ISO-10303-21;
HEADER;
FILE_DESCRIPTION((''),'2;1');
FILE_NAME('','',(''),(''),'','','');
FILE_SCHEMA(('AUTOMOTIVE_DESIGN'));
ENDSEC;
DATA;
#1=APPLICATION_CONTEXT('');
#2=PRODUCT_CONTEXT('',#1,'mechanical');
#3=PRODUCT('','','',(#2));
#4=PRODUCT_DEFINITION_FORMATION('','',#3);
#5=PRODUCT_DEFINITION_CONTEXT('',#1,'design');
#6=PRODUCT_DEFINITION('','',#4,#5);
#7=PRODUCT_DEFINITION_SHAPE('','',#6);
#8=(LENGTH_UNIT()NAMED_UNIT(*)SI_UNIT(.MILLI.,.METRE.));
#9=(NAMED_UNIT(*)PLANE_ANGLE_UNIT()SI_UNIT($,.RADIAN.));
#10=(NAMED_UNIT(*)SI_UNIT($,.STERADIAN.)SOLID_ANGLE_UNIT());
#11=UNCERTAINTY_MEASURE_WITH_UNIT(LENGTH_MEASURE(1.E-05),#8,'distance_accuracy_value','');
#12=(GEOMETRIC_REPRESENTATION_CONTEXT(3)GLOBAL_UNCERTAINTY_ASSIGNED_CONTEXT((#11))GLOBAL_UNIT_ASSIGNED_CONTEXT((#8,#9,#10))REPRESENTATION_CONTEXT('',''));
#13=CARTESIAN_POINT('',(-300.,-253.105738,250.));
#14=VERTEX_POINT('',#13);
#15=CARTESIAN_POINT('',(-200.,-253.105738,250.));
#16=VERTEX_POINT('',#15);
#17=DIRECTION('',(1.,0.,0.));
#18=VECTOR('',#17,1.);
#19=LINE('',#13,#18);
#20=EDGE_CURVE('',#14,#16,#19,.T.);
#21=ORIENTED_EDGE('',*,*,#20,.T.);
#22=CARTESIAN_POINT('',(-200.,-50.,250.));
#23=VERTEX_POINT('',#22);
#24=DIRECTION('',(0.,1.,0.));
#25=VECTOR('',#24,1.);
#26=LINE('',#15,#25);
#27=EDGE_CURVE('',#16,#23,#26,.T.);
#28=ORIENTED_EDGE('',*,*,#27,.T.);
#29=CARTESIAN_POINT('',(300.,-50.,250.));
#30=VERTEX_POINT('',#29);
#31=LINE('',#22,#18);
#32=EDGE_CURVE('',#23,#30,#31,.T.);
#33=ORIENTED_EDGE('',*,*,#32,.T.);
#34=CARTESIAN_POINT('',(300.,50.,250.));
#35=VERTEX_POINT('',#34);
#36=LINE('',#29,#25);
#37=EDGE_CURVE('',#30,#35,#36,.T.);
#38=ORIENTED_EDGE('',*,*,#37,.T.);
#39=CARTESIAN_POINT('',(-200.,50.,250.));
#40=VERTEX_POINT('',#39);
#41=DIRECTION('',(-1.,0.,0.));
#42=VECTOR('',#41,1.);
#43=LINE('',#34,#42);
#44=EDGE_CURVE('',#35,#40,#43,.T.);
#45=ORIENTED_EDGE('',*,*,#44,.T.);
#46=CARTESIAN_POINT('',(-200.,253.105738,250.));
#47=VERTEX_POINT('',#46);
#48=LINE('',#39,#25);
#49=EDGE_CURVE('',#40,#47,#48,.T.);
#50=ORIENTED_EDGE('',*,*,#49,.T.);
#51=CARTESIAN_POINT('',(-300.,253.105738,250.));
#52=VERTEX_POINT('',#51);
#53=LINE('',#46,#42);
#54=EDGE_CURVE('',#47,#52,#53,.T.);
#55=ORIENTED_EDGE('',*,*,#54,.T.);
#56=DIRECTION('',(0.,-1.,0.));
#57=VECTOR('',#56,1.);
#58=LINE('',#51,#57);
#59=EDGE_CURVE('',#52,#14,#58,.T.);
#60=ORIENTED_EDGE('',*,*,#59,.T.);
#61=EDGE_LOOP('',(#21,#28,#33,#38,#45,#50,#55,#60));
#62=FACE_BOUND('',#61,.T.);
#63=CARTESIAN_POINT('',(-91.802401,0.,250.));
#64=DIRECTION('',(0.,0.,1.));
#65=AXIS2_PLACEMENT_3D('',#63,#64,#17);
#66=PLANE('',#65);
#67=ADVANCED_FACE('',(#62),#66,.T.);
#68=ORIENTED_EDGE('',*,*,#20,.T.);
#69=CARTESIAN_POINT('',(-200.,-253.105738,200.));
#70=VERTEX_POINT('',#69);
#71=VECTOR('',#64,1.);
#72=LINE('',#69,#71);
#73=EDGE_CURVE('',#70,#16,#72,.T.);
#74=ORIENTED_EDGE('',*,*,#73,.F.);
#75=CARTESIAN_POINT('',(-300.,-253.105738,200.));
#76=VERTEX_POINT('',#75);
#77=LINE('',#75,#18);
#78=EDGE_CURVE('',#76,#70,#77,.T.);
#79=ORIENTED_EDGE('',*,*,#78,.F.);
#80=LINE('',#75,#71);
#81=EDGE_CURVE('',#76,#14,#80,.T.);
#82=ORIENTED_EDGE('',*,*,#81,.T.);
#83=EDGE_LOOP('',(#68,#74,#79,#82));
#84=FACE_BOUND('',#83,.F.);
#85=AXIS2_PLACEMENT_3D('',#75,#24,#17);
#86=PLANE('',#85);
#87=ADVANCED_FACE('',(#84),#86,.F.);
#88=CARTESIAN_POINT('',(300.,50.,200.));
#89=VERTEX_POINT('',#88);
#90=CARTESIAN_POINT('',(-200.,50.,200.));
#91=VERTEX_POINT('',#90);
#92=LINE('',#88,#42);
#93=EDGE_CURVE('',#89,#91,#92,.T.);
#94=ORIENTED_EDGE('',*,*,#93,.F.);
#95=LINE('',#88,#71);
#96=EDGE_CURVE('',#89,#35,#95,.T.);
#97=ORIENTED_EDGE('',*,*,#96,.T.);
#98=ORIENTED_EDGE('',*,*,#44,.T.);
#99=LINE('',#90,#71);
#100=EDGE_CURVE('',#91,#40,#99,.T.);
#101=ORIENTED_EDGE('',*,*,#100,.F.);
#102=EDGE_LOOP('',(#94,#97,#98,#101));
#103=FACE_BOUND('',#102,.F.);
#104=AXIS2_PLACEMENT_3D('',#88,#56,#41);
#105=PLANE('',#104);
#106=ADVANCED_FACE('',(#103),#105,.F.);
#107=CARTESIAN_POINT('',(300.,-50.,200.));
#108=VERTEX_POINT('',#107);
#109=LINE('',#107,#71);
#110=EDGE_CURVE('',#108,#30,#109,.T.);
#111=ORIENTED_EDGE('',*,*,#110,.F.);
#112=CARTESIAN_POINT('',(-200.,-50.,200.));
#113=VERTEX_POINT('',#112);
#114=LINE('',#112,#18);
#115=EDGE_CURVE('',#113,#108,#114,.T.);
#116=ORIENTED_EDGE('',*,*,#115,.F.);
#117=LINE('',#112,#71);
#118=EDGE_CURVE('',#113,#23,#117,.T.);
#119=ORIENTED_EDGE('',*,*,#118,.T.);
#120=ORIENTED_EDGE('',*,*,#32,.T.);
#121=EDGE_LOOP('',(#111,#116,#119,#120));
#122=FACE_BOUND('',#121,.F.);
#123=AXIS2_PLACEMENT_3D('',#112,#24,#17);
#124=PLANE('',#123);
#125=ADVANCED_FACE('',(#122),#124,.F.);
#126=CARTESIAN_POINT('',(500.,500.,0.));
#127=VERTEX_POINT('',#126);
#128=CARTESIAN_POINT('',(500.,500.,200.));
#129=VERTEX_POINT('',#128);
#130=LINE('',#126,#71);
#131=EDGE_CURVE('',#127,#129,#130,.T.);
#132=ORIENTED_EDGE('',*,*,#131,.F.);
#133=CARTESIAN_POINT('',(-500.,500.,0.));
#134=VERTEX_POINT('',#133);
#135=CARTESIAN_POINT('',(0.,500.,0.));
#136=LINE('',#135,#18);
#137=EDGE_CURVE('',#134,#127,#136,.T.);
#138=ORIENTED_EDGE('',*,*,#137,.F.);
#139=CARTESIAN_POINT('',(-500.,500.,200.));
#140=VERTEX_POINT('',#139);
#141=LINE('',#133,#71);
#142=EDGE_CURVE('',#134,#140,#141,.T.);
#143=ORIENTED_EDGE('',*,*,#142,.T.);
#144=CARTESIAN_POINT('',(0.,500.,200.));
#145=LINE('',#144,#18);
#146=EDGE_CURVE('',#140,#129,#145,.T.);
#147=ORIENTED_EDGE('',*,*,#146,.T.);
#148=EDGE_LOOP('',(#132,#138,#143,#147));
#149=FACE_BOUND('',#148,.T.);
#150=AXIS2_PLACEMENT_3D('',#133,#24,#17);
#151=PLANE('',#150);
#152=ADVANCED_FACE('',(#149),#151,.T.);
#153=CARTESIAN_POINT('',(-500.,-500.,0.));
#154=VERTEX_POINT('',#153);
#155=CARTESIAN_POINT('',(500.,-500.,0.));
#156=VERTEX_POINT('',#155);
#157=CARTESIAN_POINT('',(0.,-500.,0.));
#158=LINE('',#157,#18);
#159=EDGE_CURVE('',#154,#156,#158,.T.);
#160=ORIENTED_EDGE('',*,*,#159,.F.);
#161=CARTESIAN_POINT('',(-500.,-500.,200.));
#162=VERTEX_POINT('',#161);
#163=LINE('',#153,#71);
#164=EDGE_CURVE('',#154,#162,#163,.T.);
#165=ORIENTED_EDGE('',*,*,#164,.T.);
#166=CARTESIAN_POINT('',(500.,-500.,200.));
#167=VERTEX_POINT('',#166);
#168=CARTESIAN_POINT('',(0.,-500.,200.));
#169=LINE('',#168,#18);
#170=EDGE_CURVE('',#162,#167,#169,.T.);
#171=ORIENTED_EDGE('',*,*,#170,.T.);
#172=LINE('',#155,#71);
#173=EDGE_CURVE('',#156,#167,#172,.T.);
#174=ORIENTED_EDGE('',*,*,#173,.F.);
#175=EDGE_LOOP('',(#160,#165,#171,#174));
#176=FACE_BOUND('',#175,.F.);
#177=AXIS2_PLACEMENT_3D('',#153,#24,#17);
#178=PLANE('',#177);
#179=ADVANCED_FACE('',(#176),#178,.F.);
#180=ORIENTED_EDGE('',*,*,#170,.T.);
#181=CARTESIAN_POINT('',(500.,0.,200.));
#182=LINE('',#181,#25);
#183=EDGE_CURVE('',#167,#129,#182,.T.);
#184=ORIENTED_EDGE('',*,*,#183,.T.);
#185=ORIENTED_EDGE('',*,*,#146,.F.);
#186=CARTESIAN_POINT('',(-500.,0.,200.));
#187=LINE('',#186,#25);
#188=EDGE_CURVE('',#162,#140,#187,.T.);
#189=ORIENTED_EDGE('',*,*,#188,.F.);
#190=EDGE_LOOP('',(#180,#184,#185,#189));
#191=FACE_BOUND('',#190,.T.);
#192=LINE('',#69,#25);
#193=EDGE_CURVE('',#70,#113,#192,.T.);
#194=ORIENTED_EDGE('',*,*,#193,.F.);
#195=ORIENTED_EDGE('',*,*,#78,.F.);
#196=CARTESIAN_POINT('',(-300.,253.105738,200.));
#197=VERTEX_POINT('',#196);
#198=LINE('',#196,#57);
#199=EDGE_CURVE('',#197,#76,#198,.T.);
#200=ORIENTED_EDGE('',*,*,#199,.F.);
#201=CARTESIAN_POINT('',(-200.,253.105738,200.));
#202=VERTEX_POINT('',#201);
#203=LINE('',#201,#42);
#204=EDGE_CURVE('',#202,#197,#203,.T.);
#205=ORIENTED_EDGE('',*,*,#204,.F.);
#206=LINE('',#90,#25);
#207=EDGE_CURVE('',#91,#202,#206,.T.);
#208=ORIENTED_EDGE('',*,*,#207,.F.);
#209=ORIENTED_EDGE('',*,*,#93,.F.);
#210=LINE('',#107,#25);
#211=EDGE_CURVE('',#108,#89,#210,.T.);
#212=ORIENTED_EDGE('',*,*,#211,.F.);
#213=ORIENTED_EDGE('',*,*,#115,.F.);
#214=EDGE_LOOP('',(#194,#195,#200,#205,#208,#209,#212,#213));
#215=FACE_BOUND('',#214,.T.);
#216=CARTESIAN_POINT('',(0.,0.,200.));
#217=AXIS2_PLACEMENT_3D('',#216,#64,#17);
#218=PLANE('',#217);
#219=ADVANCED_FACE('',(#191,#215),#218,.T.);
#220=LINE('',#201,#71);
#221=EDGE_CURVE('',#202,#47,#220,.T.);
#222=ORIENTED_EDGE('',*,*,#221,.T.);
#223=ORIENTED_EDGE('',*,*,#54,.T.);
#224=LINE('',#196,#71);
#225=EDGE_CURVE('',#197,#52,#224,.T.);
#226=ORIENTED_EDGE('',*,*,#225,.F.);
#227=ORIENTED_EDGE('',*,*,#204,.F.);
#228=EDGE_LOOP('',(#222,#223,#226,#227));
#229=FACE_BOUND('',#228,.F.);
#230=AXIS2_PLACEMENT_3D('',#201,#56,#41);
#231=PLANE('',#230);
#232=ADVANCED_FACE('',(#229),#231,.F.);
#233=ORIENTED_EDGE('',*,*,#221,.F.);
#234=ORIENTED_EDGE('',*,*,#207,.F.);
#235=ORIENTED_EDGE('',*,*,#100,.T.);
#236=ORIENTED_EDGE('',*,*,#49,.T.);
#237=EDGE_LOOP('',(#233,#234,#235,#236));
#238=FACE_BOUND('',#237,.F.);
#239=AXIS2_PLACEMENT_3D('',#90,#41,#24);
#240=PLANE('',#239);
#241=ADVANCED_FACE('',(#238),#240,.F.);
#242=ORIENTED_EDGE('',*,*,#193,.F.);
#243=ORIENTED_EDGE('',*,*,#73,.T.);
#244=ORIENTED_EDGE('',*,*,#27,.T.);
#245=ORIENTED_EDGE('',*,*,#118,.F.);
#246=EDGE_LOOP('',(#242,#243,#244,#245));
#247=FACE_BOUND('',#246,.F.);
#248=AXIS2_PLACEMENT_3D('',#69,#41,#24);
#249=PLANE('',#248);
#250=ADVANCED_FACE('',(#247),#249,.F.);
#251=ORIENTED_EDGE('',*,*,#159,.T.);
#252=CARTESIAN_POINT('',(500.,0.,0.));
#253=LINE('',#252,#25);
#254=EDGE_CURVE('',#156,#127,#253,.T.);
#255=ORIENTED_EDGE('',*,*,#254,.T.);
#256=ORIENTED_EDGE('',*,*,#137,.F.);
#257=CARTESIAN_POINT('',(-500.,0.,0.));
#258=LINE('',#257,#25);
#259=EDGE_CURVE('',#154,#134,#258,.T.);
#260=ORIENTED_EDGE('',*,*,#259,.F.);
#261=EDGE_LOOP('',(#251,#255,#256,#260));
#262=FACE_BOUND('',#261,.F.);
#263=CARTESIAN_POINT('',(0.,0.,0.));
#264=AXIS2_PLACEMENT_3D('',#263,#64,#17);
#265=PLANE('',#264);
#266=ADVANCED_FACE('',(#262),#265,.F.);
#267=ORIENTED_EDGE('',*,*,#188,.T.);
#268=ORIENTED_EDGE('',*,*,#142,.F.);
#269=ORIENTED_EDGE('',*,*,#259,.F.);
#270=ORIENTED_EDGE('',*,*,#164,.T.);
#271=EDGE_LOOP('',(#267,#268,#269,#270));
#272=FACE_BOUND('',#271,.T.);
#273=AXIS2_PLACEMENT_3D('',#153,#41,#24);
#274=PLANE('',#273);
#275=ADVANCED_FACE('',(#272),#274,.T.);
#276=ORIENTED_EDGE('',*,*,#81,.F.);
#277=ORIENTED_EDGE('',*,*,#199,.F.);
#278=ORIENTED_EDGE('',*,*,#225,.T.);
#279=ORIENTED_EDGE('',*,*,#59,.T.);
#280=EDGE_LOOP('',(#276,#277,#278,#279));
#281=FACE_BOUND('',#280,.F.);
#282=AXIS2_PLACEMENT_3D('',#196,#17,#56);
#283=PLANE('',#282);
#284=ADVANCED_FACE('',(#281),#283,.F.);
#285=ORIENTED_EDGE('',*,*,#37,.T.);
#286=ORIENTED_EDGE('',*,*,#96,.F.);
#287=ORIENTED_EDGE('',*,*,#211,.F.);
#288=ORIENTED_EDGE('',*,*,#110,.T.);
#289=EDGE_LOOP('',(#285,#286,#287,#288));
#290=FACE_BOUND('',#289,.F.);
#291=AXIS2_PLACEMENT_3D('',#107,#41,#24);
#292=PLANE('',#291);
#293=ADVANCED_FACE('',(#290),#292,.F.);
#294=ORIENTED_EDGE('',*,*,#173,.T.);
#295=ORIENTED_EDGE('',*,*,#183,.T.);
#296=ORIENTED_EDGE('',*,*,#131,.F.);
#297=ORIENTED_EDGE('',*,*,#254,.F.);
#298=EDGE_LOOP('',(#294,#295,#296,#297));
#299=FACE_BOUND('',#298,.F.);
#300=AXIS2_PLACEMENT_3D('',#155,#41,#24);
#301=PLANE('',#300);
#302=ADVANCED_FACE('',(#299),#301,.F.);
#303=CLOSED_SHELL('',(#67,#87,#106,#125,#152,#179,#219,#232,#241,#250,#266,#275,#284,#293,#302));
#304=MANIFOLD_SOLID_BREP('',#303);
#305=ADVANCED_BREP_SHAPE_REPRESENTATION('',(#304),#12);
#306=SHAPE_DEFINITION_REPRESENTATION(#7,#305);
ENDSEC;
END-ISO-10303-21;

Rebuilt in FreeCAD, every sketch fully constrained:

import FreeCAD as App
import Part
import Sketcher
from FreeCAD import Vector

doc = App.newDocument("Part")
body = doc.addObject("PartDesign::Body", "Body")

# Sketch on XY plane
sketch1 = body.newObject("Sketcher::SketchObject", "Sketch")
sketch1.AttachmentSupport = (doc.getObject("XY_Plane"), [""])
sketch1.MapMode = "FlatFace"
sketch1.addGeometry(Part.LineSegment(Vector(-500, 500, 0), Vector(-500, -500, 0)), False)
sketch1.addGeometry(Part.LineSegment(Vector(-500, -500, 0), Vector(500, -500, 0)), False)
sketch1.addGeometry(Part.LineSegment(Vector(500, -500, 0), Vector(500, 500, 0)), False)
sketch1.addGeometry(Part.LineSegment(Vector(500, 500, 0), Vector(-500, 500, 0)), False)
sketch1.addConstraint(Sketcher.Constraint("Coincident", 0, 2, 1, 1))
sketch1.addConstraint(Sketcher.Constraint("Coincident", 1, 2, 2, 1))
sketch1.addConstraint(Sketcher.Constraint("Coincident", 2, 2, 3, 1))
sketch1.addConstraint(Sketcher.Constraint("Coincident", 3, 2, 0, 1))
sketch1.addConstraint(Sketcher.Constraint("Vertical", 0))
sketch1.addConstraint(Sketcher.Constraint("Horizontal", 1))
sketch1.addConstraint(Sketcher.Constraint("Vertical", 2))
sketch1.addConstraint(Sketcher.Constraint("Horizontal", 3))
sketch1.addConstraint(Sketcher.Constraint("Symmetric", 0, 2, 2, 2, -1, 1))
sketch1.addConstraint(Sketcher.Constraint("Equal", 3, 0))
sketch1.addConstraint(Sketcher.Constraint("DistanceX", 1, 1, 1, 2, 1000.0))
pad1 = body.newObject("PartDesign::Pad", "Pad")
pad1.Profile = sketch1
pad1.Length = 200

# Sketch on XY plane
sketch2 = body.newObject("Sketcher::SketchObject", "Sketch001")
sketch2.AttachmentSupport = (doc.getObject("XY_Plane"), [""])
sketch2.MapMode = "FlatFace"
sketch2.AttachmentOffset = App.Placement(Vector(0, 0, 200), App.Rotation())
sketch2.addGeometry(Part.LineSegment(Vector(-300, 253, 0), Vector(-300, -253, 0)), False)
sketch2.addGeometry(Part.LineSegment(Vector(-300, -253, 0), Vector(-200, -253, 0)), False)
sketch2.addGeometry(Part.LineSegment(Vector(-200, -253, 0), Vector(-200, -50, 0)), False)
sketch2.addGeometry(Part.LineSegment(Vector(-200, -50, 0), Vector(300, -50, 0)), False)
sketch2.addGeometry(Part.LineSegment(Vector(300, -50, 0), Vector(300, 50, 0)), False)
sketch2.addGeometry(Part.LineSegment(Vector(300, 50, 0), Vector(-200, 50, 0)), False)
sketch2.addGeometry(Part.LineSegment(Vector(-200, 50, 0), Vector(-200, 253, 0)), False)
sketch2.addGeometry(Part.LineSegment(Vector(-200, 253, 0), Vector(-300, 253, 0)), False)
sketch2.addConstraint(Sketcher.Constraint("Coincident", 0, 2, 1, 1))
sketch2.addConstraint(Sketcher.Constraint("Coincident", 1, 2, 2, 1))
sketch2.addConstraint(Sketcher.Constraint("Coincident", 2, 2, 3, 1))
sketch2.addConstraint(Sketcher.Constraint("Coincident", 3, 2, 4, 1))
sketch2.addConstraint(Sketcher.Constraint("Coincident", 4, 2, 5, 1))
sketch2.addConstraint(Sketcher.Constraint("Coincident", 5, 2, 6, 1))
sketch2.addConstraint(Sketcher.Constraint("Coincident", 6, 2, 7, 1))
sketch2.addConstraint(Sketcher.Constraint("Coincident", 7, 2, 0, 1))
sketch2.addConstraint(Sketcher.Constraint("Vertical", 0))
sketch2.addConstraint(Sketcher.Constraint("Horizontal", 1))
sketch2.addConstraint(Sketcher.Constraint("Vertical", 2))
sketch2.addConstraint(Sketcher.Constraint("Horizontal", 3))
sketch2.addConstraint(Sketcher.Constraint("Vertical", 4))
sketch2.addConstraint(Sketcher.Constraint("Horizontal", 5))
sketch2.addConstraint(Sketcher.Constraint("Vertical", 6))
sketch2.addConstraint(Sketcher.Constraint("Horizontal", 7))
sketch2.addConstraint(Sketcher.Constraint("Symmetric", 2, 2, 5, 2, -1))
sketch2.addConstraint(Sketcher.Constraint("Equal", 7, 4))
sketch2.addConstraint(Sketcher.Constraint("Equal", 2, 6))
sketch2.addConstraint(Sketcher.Constraint("DistanceX", 1, 1, 1, 2, 100.0))
sketch2.addConstraint(Sketcher.Constraint("DistanceX", 3, 1, 3, 2, 500.0))
sketch2.addConstraint(Sketcher.Constraint("DistanceX", 0, 2, -1, 1, 300.0))
sketch2.addConstraint(Sketcher.Constraint("DistanceY", 2, 1, 2, 2, 203.105738))
pad2 = body.newObject("PartDesign::Pad", "Pad001")
pad2.Profile = sketch2
pad2.Length = 50

doc.recompute()
